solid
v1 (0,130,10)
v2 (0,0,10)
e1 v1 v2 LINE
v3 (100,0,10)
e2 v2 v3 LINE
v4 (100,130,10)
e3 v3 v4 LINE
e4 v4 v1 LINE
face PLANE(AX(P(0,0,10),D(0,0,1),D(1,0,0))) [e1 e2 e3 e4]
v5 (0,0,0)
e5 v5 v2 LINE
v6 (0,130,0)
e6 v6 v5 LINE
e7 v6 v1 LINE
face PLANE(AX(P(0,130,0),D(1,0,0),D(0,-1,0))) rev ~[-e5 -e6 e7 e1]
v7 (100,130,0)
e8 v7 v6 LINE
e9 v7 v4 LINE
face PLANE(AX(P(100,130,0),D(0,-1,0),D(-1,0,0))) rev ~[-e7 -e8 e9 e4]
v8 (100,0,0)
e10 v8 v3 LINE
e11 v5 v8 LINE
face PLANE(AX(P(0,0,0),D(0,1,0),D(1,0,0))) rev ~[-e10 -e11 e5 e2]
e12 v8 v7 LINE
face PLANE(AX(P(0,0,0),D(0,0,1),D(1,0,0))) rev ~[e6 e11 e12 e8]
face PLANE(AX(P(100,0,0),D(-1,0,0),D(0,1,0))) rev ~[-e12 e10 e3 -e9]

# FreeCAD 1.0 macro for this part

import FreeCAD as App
import Part
import Sketcher

V = App.Vector
Q = App.Units.Quantity

doc = App.newDocument("Part")
body = doc.addObject("PartDesign::Body", "Body")

# Sketch on XY plane
sketch1 = doc.addObject("Sketcher::SketchObject", "Sketch")
body.addObject(sketch1)
sketch1.AttachmentSupport = (doc.XY_Plane, [""])
sketch1.MapMode = "FlatFace"
sketch1.addGeometry(Part.LineSegment(V(0, 130, 0), V(0, 0, 0)), False)
sketch1.addGeometry(Part.LineSegment(V(0, 0, 0), V(100, 0, 0)), False)
sketch1.addGeometry(Part.LineSegment(V(100, 0, 0), V(100, 130, 0)), False)
sketch1.addGeometry(Part.LineSegment(V(100, 130, 0), V(0, 130, 0)), False)
sketch1.addConstraint(Sketcher.Constraint("Coincident", 0, 2, 1, 1))
sketch1.addConstraint(Sketcher.Constraint("Coincident", 1, 2, 2, 1))
sketch1.addConstraint(Sketcher.Constraint("Coincident", 2, 2, 3, 1))
sketch1.addConstraint(Sketcher.Constraint("Coincident", 3, 2, 0, 1))
sketch1.addConstraint(Sketcher.Constraint("Vertical", 0))
sketch1.addConstraint(Sketcher.Constraint("Horizontal", 1))
sketch1.addConstraint(Sketcher.Constraint("Vertical", 2))
sketch1.addConstraint(Sketcher.Constraint("Horizontal", 3))
sketch1.addConstraint(Sketcher.Constraint("Coincident", 0, 2, -1, 1))
sketch1.addConstraint(Sketcher.Constraint("DistanceX", 1, 1, 1, 2, Q("3.937 in")))
sketch1.addConstraint(Sketcher.Constraint("DistanceY", 0, 2, 0, 1, Q("5.1181 in")))
pad1 = doc.addObject("PartDesign::Pad", "Pad")
body.addObject(pad1)
pad1.Profile = sketch1
pad1.Length = Q("0.3937008 in")

doc.recompute()
